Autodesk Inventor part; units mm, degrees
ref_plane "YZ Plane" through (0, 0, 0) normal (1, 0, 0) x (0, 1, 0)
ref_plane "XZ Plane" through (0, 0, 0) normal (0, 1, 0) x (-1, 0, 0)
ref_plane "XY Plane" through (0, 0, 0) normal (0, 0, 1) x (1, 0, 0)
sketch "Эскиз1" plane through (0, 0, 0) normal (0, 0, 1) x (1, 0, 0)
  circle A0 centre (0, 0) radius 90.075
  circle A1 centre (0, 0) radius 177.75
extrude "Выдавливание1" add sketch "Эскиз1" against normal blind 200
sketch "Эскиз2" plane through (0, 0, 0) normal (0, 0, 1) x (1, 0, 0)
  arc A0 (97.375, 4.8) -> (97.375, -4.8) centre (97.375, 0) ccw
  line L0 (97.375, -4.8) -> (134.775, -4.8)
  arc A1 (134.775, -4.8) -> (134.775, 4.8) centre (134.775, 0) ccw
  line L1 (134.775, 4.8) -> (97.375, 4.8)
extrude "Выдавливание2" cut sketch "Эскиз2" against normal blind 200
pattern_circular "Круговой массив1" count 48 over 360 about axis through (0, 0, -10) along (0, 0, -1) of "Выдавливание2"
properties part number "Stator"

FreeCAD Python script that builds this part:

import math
import FreeCAD as App
import Part
import Sketcher
Q = App.Units.Quantity

doc = App.newDocument("Part")
body = doc.addObject("PartDesign::Body", "Body")

sketch1 = doc.addObject("Sketcher::SketchObject", "Sketch")
body.addObject(sketch1)
sketch1.AttachmentSupport = (doc.XY_Plane, [""])
sketch1.MapMode = "FlatFace"
sketch1.addGeometry([
    Part.Circle(App.Vector(0, 0, 0), App.Vector(0, 0, 1), 177.75),
    Part.Circle(App.Vector(0, 0, 0), App.Vector(0, 0, 1), 90.075),
], False)
sketch1.addConstraint([
    Sketcher.Constraint("Coincident", 0, 3, -1, 1),
    Sketcher.Constraint("Coincident", 1, 3, -1, 1),
    Sketcher.Constraint("Diameter", 0, Q("355.5 mm")),
    Sketcher.Constraint("Diameter", 1, Q("180.15 mm")),
])
pad1 = doc.addObject("PartDesign::Pad", "Pad")
body.addObject(pad1)
pad1.Profile = sketch1
pad1.Length = 200
pad1.Reversed = True

sketch2 = doc.addObject("Sketcher::SketchObject", "Sketch001")
body.addObject(sketch2)
sketch2.AttachmentSupport = (doc.XY_Plane, [""])
sketch2.MapMode = "FlatFace"
sketch2.addGeometry([
    Part.LineSegment(App.Vector(134.775, 4.8, 0), App.Vector(97.375, 4.8, 0)),
    Part.ArcOfCircle(Part.Circle(App.Vector(97.375, 0, 0), App.Vector(0, 0, 1), 4.8), math.radians(90), math.radians(270)),
    Part.LineSegment(App.Vector(97.375, -4.8, 0), App.Vector(134.775, -4.8, 0)),
    Part.ArcOfCircle(Part.Circle(App.Vector(134.775, 0, 0), App.Vector(0, 0, 1), 4.8), math.radians(-90), math.radians(90)),
], False)
sketch2.addConstraint([
    Sketcher.Constraint("Tangent", 0, 2, 1, 1),
    Sketcher.Constraint("Tangent", 1, 2, 2, 1),
    Sketcher.Constraint("Tangent", 2, 2, 3, 1),
    Sketcher.Constraint("Tangent", 3, 2, 0, 1),
    Sketcher.Constraint("Horizontal", 0),
    Sketcher.Constraint("Horizontal", 2),
    Sketcher.Constraint("PointOnObject", 1, 3, -1),
    Sketcher.Constraint("Radius", 1, Q("4.8 mm")),
    Sketcher.Constraint("DistanceX", 0, 2, 0, 1, Q("37.4 mm")),
    Sketcher.Constraint("DistanceX", -1, 1, 1, 3, Q("97.375 mm")),
])
pocket1 = doc.addObject("PartDesign::Pocket", "Pocket")
body.addObject(pocket1)
pocket1.Profile = sketch2
pocket1.Length = 200
doc.recompute()

polarpattern = doc.addObject("PartDesign::PolarPattern", "PolarPattern")
body.addObject(polarpattern)
polarpattern.Originals = [pocket1]
polarpattern.Axis = (doc.Z_Axis, [""])
polarpattern.Angle = 360
polarpattern.Occurrences = 48
body.Tip = polarpattern

doc.recompute()
